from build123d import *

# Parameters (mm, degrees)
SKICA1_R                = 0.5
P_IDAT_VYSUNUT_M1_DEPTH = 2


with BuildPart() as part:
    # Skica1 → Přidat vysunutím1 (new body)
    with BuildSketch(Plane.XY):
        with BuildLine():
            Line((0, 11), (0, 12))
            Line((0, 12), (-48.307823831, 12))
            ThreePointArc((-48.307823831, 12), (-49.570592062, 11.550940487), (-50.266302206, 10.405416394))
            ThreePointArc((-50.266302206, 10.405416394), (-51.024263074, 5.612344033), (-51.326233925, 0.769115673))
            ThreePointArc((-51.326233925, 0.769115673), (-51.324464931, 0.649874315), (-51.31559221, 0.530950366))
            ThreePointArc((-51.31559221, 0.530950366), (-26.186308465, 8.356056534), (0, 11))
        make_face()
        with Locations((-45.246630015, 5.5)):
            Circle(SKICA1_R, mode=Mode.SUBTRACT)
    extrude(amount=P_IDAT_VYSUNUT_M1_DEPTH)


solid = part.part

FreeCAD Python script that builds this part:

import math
import FreeCAD as App
import Part
import Sketcher
Q = App.Units.Quantity

doc = App.newDocument("Part")
body = doc.addObject("PartDesign::Body", "Body")

sketch1 = body.newObject("Sketcher::SketchObject", "Sketch")
sketch1.AttachmentSupport = (doc.getObject("XY_Plane"), [""])
sketch1.MapMode = "FlatFace"
sketch1.addGeometry(Part.LineSegment(App.Vector(0, 11, 0), App.Vector(0, 12, 0)), False)
sketch1.addGeometry(Part.LineSegment(App.Vector(0, 12, 0), App.Vector(-48.31, 12, 0)), False)
sketch1.addGeometry(Part.ArcOfCircle(Part.Circle(App.Vector(-48.31, 10, 0), App.Vector(0, 0, 1), 2), math.radians(90), math.radians(168)), False)
sketch1.addGeometry(Part.ArcOfCircle(Part.Circle(App.Vector(0, 0, 0), App.Vector(0, 0, 1), 51.33), math.radians(168.3), math.radians(179.14)), False)
sketch1.addGeometry(Part.ArcOfCircle(Part.Circle(App.Vector(-49.33, 0.74, 0), App.Vector(0, 0, 1), 2), math.radians(179.14), math.radians(185.98)), False)
sketch1.addGeometry(Part.ArcOfCircle(Part.Circle(App.Vector(0, -120, 0), App.Vector(0, 0, 1), 131), math.radians(90), math.radians(113)), False)
sketch1.addGeometry(Part.Circle(App.Vector(-45.25, 5.5, 0), App.Vector(0, 0, 1), 0.5), False)
sketch1.addConstraint(Sketcher.Constraint("Coincident", 0, 2, 1, 1))
sketch1.addConstraint(Sketcher.Constraint("Tangent", 1, 2, 2, 1))
sketch1.addConstraint(Sketcher.Constraint("Tangent", 2, 2, 3, 1))
sketch1.addConstraint(Sketcher.Constraint("Tangent", 3, 2, 4, 1))
sketch1.addConstraint(Sketcher.Constraint("Coincident", 4, 2, 5, 2))
sketch1.addConstraint(Sketcher.Constraint("Coincident", 5, 1, 0, 1))
sketch1.addConstraint(Sketcher.Constraint("Vertical", 0))
sketch1.addConstraint(Sketcher.Constraint("Horizontal", 1))
sketch1.addConstraint(Sketcher.Constraint("Coincident", 3, 3, -1, 1))
sketch1.addConstraint(Sketcher.Constraint("Equal", 2, 4))
sketch1.addConstraint(Sketcher.Constraint("PointOnObject", 5, 3, -2))
sketch1.addConstraint(Sketcher.Constraint("PointOnObject", 0, 2, -2))
sketch1.addConstraint(Sketcher.Constraint("Diameter", 6, Q("1 mm")))
sketch1.addConstraint(Sketcher.Constraint("Radius", 2, Q("2 mm")))
sketch1.addConstraint(Sketcher.Constraint("Radius", 5, Q("131 mm")))
sketch1.addConstraint(Sketcher.Constraint("DistanceY", 0, 1, 0, 2, Q("1 mm")))
sketch1.addConstraint(Sketcher.Constraint("DistanceY", -1, 1, 2, 3, Q("10 mm")))
sketch1.addConstraint(Sketcher.Constraint("DistanceY", -1, 1, 6, 3, Q("5.5 mm")))
sketch1.addConstraint(Sketcher.Constraint("Radius", 3, Q("51.331996 mm")))
sketch1.addConstraint(Sketcher.Constraint("DistanceY", 3, 2, 2, 2, Q("9.636301 mm")))
sketch1.addConstraint(Sketcher.Constraint("DistanceX", 6, 3, -1, 1, Q("45.24663 mm")))
pad1 = body.newObject("PartDesign::Pad", "Pad")
pad1.Profile = sketch1
pad1.Length = 2

doc.recompute()
